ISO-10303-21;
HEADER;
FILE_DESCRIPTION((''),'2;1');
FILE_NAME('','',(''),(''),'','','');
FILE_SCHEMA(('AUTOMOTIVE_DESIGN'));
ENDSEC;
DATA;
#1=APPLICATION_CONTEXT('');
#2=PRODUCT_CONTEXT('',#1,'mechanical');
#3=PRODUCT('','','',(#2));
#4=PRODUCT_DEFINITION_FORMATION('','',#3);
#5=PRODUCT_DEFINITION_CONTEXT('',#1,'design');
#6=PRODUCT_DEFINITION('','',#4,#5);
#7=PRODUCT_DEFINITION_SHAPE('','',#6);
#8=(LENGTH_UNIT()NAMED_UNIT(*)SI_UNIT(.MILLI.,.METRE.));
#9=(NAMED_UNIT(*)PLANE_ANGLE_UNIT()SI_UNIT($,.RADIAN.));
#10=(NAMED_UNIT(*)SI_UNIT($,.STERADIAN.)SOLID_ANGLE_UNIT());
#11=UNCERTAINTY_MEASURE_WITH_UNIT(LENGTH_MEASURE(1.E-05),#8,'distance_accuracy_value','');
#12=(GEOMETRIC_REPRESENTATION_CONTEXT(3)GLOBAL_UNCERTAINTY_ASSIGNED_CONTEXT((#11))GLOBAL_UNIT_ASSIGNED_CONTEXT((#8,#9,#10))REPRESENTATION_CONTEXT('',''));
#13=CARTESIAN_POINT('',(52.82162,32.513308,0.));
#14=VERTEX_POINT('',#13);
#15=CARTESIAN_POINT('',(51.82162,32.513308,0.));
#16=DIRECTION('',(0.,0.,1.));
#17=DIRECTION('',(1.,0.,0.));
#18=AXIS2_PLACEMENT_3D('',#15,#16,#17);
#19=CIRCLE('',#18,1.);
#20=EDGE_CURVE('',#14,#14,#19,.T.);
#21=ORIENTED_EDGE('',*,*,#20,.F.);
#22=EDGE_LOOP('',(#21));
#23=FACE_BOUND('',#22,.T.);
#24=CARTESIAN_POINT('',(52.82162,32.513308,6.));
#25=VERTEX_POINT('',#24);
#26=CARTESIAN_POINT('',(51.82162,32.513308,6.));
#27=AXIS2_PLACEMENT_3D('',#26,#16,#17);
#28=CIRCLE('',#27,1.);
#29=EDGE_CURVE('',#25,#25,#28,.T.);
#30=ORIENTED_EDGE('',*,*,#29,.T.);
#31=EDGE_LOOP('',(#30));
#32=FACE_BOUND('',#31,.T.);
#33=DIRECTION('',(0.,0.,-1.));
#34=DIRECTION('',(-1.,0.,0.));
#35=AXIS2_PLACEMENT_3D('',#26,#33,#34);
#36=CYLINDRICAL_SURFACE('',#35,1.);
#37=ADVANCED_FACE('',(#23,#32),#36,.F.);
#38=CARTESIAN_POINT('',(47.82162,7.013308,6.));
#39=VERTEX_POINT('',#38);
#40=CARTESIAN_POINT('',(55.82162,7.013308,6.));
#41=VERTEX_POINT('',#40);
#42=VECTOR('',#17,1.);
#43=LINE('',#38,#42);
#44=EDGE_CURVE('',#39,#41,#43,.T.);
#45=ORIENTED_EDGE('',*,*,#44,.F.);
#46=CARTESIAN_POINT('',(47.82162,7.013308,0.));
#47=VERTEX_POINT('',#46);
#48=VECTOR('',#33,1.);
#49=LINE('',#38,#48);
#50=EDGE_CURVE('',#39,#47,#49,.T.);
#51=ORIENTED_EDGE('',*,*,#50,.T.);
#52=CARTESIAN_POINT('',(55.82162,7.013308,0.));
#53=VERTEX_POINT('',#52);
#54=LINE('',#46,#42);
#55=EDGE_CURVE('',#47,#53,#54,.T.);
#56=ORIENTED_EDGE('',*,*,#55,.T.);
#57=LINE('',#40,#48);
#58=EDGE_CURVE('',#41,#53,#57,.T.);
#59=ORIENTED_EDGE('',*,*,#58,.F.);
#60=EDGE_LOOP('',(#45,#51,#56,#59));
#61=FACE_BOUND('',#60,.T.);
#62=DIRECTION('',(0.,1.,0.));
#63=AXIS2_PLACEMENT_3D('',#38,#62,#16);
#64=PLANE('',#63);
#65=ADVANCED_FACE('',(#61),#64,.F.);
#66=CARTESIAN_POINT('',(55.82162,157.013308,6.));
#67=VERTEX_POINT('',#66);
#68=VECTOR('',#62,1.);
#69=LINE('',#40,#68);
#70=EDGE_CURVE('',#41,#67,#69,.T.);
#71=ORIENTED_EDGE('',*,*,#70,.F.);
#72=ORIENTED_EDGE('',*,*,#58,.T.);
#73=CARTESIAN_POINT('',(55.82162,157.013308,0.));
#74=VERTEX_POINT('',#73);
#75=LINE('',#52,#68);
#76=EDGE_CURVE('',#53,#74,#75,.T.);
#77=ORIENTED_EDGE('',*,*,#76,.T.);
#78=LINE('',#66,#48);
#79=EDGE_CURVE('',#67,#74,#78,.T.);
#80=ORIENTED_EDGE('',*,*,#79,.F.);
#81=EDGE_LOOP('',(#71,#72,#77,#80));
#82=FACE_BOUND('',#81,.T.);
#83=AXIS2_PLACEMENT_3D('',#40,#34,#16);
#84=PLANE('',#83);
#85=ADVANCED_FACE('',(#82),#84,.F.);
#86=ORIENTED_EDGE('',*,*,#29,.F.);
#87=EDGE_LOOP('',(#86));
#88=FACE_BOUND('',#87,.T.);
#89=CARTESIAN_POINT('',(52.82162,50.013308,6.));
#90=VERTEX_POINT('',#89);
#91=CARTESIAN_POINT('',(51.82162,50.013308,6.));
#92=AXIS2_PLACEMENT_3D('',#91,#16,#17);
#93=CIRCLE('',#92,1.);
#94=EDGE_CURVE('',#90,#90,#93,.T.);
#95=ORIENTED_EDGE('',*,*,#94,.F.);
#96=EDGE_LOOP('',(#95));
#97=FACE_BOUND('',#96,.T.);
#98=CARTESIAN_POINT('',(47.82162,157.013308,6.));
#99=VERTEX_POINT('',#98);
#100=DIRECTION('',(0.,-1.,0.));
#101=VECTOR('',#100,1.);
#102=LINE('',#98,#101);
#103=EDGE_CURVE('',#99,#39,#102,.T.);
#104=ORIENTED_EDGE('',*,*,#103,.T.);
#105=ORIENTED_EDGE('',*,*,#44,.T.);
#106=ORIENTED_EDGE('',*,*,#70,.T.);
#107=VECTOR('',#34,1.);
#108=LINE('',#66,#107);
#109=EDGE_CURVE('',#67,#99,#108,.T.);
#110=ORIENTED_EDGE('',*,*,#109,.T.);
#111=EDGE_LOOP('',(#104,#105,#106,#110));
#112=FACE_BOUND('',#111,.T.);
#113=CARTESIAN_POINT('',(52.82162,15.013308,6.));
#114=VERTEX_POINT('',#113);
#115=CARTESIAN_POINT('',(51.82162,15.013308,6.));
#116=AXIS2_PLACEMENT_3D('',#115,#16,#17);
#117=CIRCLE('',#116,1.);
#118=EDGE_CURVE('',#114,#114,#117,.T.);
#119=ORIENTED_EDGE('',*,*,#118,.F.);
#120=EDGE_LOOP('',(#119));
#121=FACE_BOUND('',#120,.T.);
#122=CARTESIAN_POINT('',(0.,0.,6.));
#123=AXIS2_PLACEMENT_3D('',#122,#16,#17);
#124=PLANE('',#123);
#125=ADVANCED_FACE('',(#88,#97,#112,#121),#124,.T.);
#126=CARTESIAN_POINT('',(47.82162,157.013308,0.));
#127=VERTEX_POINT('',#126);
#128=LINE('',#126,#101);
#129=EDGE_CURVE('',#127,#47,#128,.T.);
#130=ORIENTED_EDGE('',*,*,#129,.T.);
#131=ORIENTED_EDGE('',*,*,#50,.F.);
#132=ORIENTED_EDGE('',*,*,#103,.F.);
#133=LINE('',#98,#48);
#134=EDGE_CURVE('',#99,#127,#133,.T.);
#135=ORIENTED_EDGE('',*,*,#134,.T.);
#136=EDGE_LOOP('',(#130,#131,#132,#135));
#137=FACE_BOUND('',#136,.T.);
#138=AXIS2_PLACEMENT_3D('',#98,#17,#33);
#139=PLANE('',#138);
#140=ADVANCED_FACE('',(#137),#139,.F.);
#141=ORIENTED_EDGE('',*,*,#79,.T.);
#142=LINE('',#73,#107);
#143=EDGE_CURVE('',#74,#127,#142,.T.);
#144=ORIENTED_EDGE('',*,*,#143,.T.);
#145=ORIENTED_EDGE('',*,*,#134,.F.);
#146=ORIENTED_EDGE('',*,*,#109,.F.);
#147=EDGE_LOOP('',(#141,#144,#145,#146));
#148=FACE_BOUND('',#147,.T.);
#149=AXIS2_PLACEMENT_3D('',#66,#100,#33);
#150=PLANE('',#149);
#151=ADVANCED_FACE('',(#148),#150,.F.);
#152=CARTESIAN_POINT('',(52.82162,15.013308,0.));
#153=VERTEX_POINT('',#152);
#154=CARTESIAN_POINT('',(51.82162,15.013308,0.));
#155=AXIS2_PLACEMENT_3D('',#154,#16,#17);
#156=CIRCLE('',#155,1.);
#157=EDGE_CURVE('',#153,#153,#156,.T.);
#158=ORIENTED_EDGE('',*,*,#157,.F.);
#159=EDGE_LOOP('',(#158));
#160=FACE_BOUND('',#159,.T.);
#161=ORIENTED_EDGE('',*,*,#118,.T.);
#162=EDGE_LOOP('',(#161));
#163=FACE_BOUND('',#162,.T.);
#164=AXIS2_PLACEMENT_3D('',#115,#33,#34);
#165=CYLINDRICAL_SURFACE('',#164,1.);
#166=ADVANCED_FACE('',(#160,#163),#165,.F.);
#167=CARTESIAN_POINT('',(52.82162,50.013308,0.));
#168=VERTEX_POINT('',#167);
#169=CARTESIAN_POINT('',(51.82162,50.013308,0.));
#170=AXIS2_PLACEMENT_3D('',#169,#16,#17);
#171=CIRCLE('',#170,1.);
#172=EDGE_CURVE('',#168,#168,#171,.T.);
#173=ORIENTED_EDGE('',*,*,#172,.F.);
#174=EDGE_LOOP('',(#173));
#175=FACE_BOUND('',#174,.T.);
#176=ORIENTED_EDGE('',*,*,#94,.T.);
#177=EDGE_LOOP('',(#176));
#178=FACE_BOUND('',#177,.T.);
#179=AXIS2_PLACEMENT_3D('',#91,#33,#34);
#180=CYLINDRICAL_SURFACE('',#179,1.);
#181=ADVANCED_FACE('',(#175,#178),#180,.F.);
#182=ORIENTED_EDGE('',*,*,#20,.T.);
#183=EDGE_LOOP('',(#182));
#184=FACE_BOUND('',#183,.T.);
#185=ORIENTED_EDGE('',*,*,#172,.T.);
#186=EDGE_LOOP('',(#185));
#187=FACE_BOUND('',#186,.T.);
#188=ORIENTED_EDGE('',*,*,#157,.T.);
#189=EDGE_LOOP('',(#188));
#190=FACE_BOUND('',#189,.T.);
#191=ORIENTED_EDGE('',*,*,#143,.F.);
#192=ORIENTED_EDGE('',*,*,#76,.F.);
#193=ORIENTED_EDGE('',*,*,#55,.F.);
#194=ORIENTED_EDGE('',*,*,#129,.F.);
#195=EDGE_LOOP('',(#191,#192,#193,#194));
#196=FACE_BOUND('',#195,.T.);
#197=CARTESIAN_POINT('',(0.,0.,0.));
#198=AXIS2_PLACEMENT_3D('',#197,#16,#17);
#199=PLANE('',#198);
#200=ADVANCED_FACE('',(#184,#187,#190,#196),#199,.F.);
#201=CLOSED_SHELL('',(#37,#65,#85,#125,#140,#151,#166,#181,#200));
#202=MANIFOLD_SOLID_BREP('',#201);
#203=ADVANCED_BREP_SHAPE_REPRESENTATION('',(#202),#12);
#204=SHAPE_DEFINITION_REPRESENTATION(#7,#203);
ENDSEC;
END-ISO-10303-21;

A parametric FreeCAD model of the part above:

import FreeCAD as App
import Part
import Sketcher


def add_polygon(sketch, points):
    """Adds a closed chain of lines whose ends are joined by coincident constraints."""
    first, n = sketch.GeometryCount, len(points)
    for a, b in zip(points, points[1:] + points[:1]):
        sketch.addGeometry(Part.LineSegment(App.Vector(*a, 0), App.Vector(*b, 0)), False)
    for i in range(n):
        sketch.addConstraint(Sketcher.Constraint("Coincident", first + i, 2, first + (i + 1) % n, 1))

doc = App.newDocument("Part")
body = doc.addObject("PartDesign::Body", "Body")

# Sketch on XY plane
sketch1 = body.newObject("Sketcher::SketchObject", "Sketch")
sketch1.AttachmentSupport = (doc.getObject("XY_Plane"), [""])
sketch1.MapMode = "FlatFace"
add_polygon(sketch1, [(47.8, 157), (47.8, 7), (55.8, 7), (55.8, 157)])  # lines 0-3
sketch1.addGeometry(Part.Circle(App.Vector(51.8, 15, 0), App.Vector(0, 0, 1), 1), False)  # 4
sketch1.addGeometry(Part.Circle(App.Vector(51.8, 32.5, 0), App.Vector(0, 0, 1), 1), False)  # 5
sketch1.addGeometry(Part.Circle(App.Vector(51.8, 50, 0), App.Vector(0, 0, 1), 1), False)  # 6
sketch1.addConstraint([
    Sketcher.Constraint("Vertical", 0),
    Sketcher.Constraint("Horizontal", 1),
    Sketcher.Constraint("Vertical", 2),
    Sketcher.Constraint("Horizontal", 3),
    Sketcher.Constraint("Equal", 4, 5),
    Sketcher.Constraint("Equal", 5, 6),
    Sketcher.Constraint("Vertical", 4, 3, 5, 3),
    Sketcher.Constraint("Vertical", 5, 3, 6, 3),
    Sketcher.Constraint("Diameter", 4, 2.0),
    Sketcher.Constraint("DistanceX", 1, 1, 1, 2, 8.0),
    Sketcher.Constraint("DistanceY", 0, 2, 0, 1, 150.0),
    Sketcher.Constraint("DistanceY", 4, 3, 6, 3, 35.0),
    Sketcher.Constraint("DistanceX", 0, 2, 4, 3, 4.0),
    Sketcher.Constraint("DistanceY", 0, 2, 4, 3, 8.0),
    Sketcher.Constraint("DistanceY", 4, 3, 5, 3, 17.5),
    Sketcher.Constraint("DistanceX", -1, 1, 4, 3, 51.82162),
    Sketcher.Constraint("DistanceY", -1, 1, 4, 3, 15.013308),
])
pad1 = body.newObject("PartDesign::Pad", "Pad")
pad1.Profile = sketch1
pad1.Length = 6

doc.recompute()
